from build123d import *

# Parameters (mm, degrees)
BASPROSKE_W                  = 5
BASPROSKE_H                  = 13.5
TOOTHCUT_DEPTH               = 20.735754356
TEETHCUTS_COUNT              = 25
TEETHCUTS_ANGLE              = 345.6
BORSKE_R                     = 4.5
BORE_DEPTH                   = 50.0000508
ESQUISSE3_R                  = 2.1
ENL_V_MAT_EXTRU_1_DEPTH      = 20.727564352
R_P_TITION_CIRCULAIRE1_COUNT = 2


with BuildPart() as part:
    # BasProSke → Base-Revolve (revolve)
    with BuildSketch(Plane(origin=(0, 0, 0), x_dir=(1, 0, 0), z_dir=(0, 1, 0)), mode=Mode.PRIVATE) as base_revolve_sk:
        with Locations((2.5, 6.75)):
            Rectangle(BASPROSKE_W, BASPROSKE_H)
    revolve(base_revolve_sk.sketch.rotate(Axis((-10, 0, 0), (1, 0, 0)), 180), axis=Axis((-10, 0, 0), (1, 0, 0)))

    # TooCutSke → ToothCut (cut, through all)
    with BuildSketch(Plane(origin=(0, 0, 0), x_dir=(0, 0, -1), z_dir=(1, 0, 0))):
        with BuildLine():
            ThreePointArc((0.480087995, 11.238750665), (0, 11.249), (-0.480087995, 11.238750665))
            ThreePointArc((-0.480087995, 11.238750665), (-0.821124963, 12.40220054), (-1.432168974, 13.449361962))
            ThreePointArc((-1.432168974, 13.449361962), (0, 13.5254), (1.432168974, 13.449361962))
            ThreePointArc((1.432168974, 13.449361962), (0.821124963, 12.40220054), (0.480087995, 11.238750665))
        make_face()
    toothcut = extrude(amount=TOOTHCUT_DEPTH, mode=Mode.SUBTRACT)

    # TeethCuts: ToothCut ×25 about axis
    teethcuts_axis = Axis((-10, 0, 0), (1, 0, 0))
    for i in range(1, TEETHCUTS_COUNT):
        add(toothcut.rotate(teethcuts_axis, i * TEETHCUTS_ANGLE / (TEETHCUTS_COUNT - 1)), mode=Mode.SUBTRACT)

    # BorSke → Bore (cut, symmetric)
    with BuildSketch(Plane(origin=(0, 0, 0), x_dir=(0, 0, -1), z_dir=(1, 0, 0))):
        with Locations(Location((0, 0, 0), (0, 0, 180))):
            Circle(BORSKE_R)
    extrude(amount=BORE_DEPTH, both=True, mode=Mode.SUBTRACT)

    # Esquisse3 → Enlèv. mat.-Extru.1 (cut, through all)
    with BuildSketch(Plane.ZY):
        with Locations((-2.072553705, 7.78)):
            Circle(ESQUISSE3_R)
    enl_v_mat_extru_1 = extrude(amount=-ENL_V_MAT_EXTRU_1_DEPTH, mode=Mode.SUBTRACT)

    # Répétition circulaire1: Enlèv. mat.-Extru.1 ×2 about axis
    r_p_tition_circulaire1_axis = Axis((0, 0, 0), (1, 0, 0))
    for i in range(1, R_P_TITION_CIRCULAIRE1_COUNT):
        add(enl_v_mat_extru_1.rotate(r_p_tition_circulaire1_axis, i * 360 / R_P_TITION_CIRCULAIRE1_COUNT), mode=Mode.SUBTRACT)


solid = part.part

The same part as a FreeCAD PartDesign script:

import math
import FreeCAD as App
import Part
import Sketcher
Q = App.Units.Quantity

doc = App.newDocument("Part")
body = doc.addObject("PartDesign::Body", "Body")

# Sketch on XZ plane
sketch1 = body.newObject("Sketcher::SketchObject", "Sketch")
sketch1.AttachmentSupport = (doc.getObject("XZ_Plane"), [""])
sketch1.MapMode = "FlatFace"
sketch1.addGeometry([
    Part.LineSegment(App.Vector(0, -14, 0), App.Vector(0, 0, 0)),
    Part.LineSegment(App.Vector(0, 0, 0), App.Vector(5, 0, 0)),
    Part.LineSegment(App.Vector(5, 0, 0), App.Vector(5, -14, 0)),
    Part.LineSegment(App.Vector(5, -14, 0), App.Vector(0, -14, 0)),
], False)
sketch1.addConstraint([
    Sketcher.Constraint("Coincident", 0, 2, 1, 1),
    Sketcher.Constraint("Coincident", 1, 2, 2, 1),
    Sketcher.Constraint("Coincident", 2, 2, 3, 1),
    Sketcher.Constraint("Coincident", 3, 2, 0, 1),
    Sketcher.Constraint("Vertical", 0),
    Sketcher.Constraint("Horizontal", 1),
    Sketcher.Constraint("Vertical", 2),
    Sketcher.Constraint("Horizontal", 3),
    Sketcher.Constraint("Coincident", 0, 2, -1, 1),
    Sketcher.Constraint("DistanceX", 1, 1, 1, 2, Q("5 mm")),
    Sketcher.Constraint("DistanceY", 0, 1, 0, 2, Q("13.5 mm")),
])
revolution = body.newObject("PartDesign::Revolution", "Revolution")
revolution.Profile = sketch1
revolution.ReferenceAxis = (sketch1, ["H_Axis"])
revolution.Angle = 360

# Sketch on YZ plane
sketch2 = body.newObject("Sketcher::SketchObject", "Sketch001")
sketch2.AttachmentSupport = (doc.getObject("YZ_Plane"), [""])
sketch2.MapMode = "FlatFace"
sketch2.addGeometry([
    Part.ArcOfCircle(Part.Circle(App.Vector(0, 0, 0), App.Vector(0, 0, 1), 11.2), math.radians(-2.45), math.radians(2.45)),
    Part.ArcOfCircle(Part.Circle(App.Vector(10.4, -5.4, 0), App.Vector(0, 0, 1), 5), math.radians(53), math.radians(81)),
    Part.ArcOfCircle(Part.Circle(App.Vector(0, 0, 0), App.Vector(0, 0, 1), 13.5), math.radians(-6.08), math.radians(6.08)),
    Part.ArcOfCircle(Part.Circle(App.Vector(10.4, 5.4, 0), App.Vector(0, 0, 1), 5), math.radians(-81), math.radians(-53)),
], False)
sketch2.addConstraint([
    Sketcher.Constraint("Coincident", 0, 1, 1, 2),
    Sketcher.Constraint("Coincident", 1, 1, 2, 1),
    Sketcher.Constraint("Coincident", 2, 2, 3, 2),
    Sketcher.Constraint("Coincident", 3, 1, 0, 2),
    Sketcher.Constraint("Coincident", 0, 3, -1, 1),
    Sketcher.Constraint("Coincident", 2, 3, -1, 1),
    Sketcher.Constraint("Equal", 1, 3),
    Sketcher.Constraint("Symmetric", 1, 3, 3, 3, -1),
    Sketcher.Constraint("Radius", 1, Q("5 mm")),
    Sketcher.Constraint("Radius", 0, Q("11.249 mm")),
    Sketcher.Constraint("Radius", 2, Q("13.5254 mm")),
    Sketcher.Constraint("DistanceX", -1, 1, 1, 3, Q("10.424401 mm")),
    Sketcher.Constraint("DistanceX", -1, 1, 0, 1, Q("11.238751 mm")),
])
pocket1 = body.newObject("PartDesign::Pocket", "Pocket")
pocket1.Profile = sketch2
pocket1.Type = "ThroughAll"
pocket1.Reversed = True
doc.recompute()

polarpattern = body.newObject("PartDesign::PolarPattern", "PolarPattern")
polarpattern.Originals = [pocket1]
polarpattern.Axis = (doc.getObject("X_Axis"), [""])
polarpattern.Angle = 360
polarpattern.Occurrences = 25
body.Tip = polarpattern

# Sketch on YZ plane
sketch3 = body.newObject("Sketcher::SketchObject", "Sketch002")
sketch3.AttachmentSupport = (doc.getObject("YZ_Plane"), [""])
sketch3.MapMode = "FlatFace"
sketch3.addGeometry(Part.Circle(App.Vector(0, 0, 0), App.Vector(0, 0, 1), 4.5), False)
sketch3.addConstraint([
    Sketcher.Constraint("Coincident", 0, 3, -1, 1),
    Sketcher.Constraint("Diameter", 0, Q("9 mm")),
])
pocket2 = body.newObject("PartDesign::Pocket", "Pocket001")
pocket2.Profile = sketch3
pocket2.Length = 100.000102
pocket2.Midplane = True

# Sketch on YZ plane
sketch4 = body.newObject("Sketcher::SketchObject", "Sketch003")
sketch4.AttachmentSupport = (doc.getObject("YZ_Plane"), [""])
sketch4.MapMode = "FlatFace"
sketch4.addGeometry(Part.Circle(App.Vector(7.8, -2.1, 0), App.Vector(0, 0, 1), 2.1), False)
sketch4.addConstraint([
    Sketcher.Constraint("Diameter", 0, Q("4.2 mm")),
    Sketcher.Constraint("DistanceX", -1, 1, 0, 3, Q("7.78 mm")),
    Sketcher.Constraint("DistanceY", 0, 3, -1, 1, Q("2.072554 mm")),
])
pocket3 = body.newObject("PartDesign::Pocket", "Pocket002")
pocket3.Profile = sketch4
pocket3.Type = "ThroughAll"
pocket3.Reversed = True
doc.recompute()

polarpattern2 = body.newObject("PartDesign::PolarPattern", "PolarPattern001")
polarpattern2.Originals = [pocket3]
polarpattern2.Axis = (doc.getObject("X_Axis"), [""])
polarpattern2.Angle = 360
polarpattern2.Occurrences = 2
body.Tip = polarpattern2

doc.recompute()
